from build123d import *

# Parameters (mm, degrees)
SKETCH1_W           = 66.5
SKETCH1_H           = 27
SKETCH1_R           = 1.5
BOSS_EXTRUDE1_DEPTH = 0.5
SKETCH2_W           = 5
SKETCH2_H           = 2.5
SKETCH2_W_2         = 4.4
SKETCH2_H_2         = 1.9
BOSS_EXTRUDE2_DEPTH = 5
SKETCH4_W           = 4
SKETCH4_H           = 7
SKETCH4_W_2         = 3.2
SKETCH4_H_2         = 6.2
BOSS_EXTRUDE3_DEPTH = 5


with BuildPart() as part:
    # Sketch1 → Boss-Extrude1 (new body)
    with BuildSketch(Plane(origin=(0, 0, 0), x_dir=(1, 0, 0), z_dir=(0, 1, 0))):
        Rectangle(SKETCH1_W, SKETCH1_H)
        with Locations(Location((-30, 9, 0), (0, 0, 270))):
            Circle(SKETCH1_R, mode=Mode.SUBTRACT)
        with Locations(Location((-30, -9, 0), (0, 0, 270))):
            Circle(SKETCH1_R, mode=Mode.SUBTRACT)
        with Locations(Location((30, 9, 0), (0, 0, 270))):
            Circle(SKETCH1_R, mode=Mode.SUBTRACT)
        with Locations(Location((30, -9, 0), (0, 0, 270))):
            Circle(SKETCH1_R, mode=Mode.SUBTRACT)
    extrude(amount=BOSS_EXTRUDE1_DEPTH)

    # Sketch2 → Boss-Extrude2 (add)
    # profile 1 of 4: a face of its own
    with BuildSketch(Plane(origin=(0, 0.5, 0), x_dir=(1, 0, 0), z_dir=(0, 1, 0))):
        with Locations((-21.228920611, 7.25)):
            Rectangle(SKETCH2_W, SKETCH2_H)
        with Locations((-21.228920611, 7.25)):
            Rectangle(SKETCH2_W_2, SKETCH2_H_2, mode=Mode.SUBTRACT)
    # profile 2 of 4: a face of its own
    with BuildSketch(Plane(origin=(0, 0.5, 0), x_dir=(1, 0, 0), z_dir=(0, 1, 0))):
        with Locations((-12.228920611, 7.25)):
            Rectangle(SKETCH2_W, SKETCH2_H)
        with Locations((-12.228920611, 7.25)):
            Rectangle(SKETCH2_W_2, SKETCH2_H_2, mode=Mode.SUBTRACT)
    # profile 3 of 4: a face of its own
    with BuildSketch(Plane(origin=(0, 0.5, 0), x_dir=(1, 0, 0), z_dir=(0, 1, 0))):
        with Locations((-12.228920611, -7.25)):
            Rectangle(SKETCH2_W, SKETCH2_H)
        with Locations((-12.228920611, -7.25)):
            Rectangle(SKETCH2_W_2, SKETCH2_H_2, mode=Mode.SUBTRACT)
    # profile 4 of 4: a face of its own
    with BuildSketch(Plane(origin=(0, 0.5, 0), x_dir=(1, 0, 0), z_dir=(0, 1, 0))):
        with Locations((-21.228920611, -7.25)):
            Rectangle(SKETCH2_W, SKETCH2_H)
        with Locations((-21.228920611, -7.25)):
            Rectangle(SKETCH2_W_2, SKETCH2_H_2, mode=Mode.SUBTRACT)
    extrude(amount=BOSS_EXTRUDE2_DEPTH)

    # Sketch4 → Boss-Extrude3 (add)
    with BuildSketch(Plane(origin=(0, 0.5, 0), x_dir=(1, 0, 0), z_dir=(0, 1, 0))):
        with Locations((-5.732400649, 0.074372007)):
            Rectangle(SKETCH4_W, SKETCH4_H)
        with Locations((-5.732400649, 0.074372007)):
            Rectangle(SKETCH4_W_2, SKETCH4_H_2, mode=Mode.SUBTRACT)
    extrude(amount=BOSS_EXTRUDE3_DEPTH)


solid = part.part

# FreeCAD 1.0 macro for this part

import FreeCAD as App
import Part
import Sketcher

V = App.Vector

doc = App.newDocument("Part")
params = doc.addObject("Spreadsheet::Sheet", "Params")
for row, (alias, value) in enumerate([
    ("sketch1_diameter", "3 mm"),
    ("sketch1_height", "27 mm"),
    ("sketch1_width", "66.5 mm"),
    ("pad1_length", "0.5 mm"),
    ("sketch2_width", "5 mm"),
    ("sketch2_width2", "4.4 mm"),
    ("sketch2_height", "2.5 mm"),
    ("sketch2_height2", "1.9 mm"),
    ("pad2_length", "5 mm"),
    ("sketch3_width", "4 mm"),
    ("sketch3_height", "7 mm"),
    ("sketch3_width2", "3.2 mm"),
    ("sketch3_height2", "6.2 mm"),
    ("pad3_length", "5 mm"),
], start=1):
    params.set(f"A{row}", alias)
    params.set(f"B{row}", "=" + value)
    params.setAlias(f"B{row}", alias)

body = doc.addObject("PartDesign::Body", "Body")

# Sketch on XZ plane
sketch1 = doc.addObject("Sketcher::SketchObject", "Sketch")
body.addObject(sketch1)
sketch1.AttachmentSupport = (doc.XZ_Plane, [""])
sketch1.MapMode = "FlatFace"
sketch1.addGeometry([
    Part.LineSegment(V(-33.2, -13.5, 0), V(-33.2, 13.5, 0)),  # 0
    Part.LineSegment(V(-33.2, 13.5, 0), V(33.2, 13.5, 0)),  # 1
    Part.LineSegment(V(33.2, 13.5, 0), V(33.2, -13.5, 0)),  # 2
    Part.LineSegment(V(33.2, -13.5, 0), V(-33.2, -13.5, 0)),  # 3
    Part.Circle(V(-30, 9, 0), V(0, 0, 1), 1.5),  # 4
    Part.Circle(V(30, 9, 0), V(0, 0, 1), 1.5),  # 5
    Part.Circle(V(-30, -9, 0), V(0, 0, 1), 1.5),  # 6
    Part.Circle(V(30, -9, 0), V(0, 0, 1), 1.5),  # 7
], False)
sketch1.addConstraint([
    Sketcher.Constraint("Coincident", 0, 2, 1, 1),
    Sketcher.Constraint("Coincident", 1, 2, 2, 1),
    Sketcher.Constraint("Coincident", 2, 2, 3, 1),
    Sketcher.Constraint("Coincident", 3, 2, 0, 1),
    Sketcher.Constraint("Vertical", 0),
    Sketcher.Constraint("Horizontal", 1),
    Sketcher.Constraint("Vertical", 2),
    Sketcher.Constraint("Horizontal", 3),
    Sketcher.Constraint("Equal", 4, 5),
    Sketcher.Constraint("Equal", 5, 6),
    Sketcher.Constraint("Equal", 6, 7),
    Sketcher.Constraint("Symmetric", 5, 3, 6, 3, -1, 1),
    Sketcher.Constraint("Symmetric", 4, 3, 7, 3, -1, 1),
    Sketcher.Constraint("Symmetric", 0, 2, 2, 2, -1, 1),
    Sketcher.Constraint("Symmetric", 4, 3, 5, 3, -2),
    Sketcher.Constraint("Diameter", 4, 3.0),
    Sketcher.Constraint("DistanceY", 0, 1, 0, 2, 27.0),
    Sketcher.Constraint("DistanceX", 1, 1, 1, 2, 66.5),
    Sketcher.Constraint("DistanceX", 4, 3, -1, 1, 30.0),
    Sketcher.Constraint("DistanceY", -1, 1, 4, 3, 9.0),
])
sketch1.setExpression("Constraints[15]", "Params.sketch1_diameter")
sketch1.setExpression("Constraints[16]", "Params.sketch1_height")
sketch1.setExpression("Constraints[17]", "Params.sketch1_width")
pad1 = doc.addObject("PartDesign::Pad", "Pad")
body.addObject(pad1)
pad1.Profile = sketch1
pad1.setExpression("Length", "Params.pad1_length")
pad1.Reversed = True

# Sketch on XZ plane
sketch2 = doc.addObject("Sketcher::SketchObject", "Sketch001")
body.addObject(sketch2)
sketch2.AttachmentSupport = (doc.XZ_Plane, [""])
sketch2.MapMode = "FlatFace"
sketch2.AttachmentOffset = App.Placement(V(0, 0, -0.5), App.Rotation())
sketch2.addGeometry([
    Part.LineSegment(V(-23.7, -8.5, 0), V(-23.7, -6, 0)),  # 0
    Part.LineSegment(V(-23.7, -6, 0), V(-18.7, -6, 0)),  # 1
    Part.LineSegment(V(-18.7, -6, 0), V(-18.7, -8.5, 0)),  # 2
    Part.LineSegment(V(-18.7, -8.5, 0), V(-23.7, -8.5, 0)),  # 3
    Part.LineSegment(V(-19, -6.3, 0), V(-23.4, -6.3, 0)),  # 4
    Part.LineSegment(V(-23.4, -6.3, 0), V(-23.4, -8.2, 0)),  # 5
    Part.LineSegment(V(-23.4, -8.2, 0), V(-19, -8.2, 0)),  # 6
    Part.LineSegment(V(-19, -8.2, 0), V(-19, -6.3, 0)),  # 7
    Part.LineSegment(V(-14.7, -8.5, 0), V(-14.7, -6, 0)),  # 8
    Part.LineSegment(V(-14.7, -6, 0), V(-9.7, -6, 0)),  # 9
    Part.LineSegment(V(-9.7, -6, 0), V(-9.7, -8.5, 0)),  # 10
    Part.LineSegment(V(-9.7, -8.5, 0), V(-14.7, -8.5, 0)),  # 11
    Part.LineSegment(V(-10, -6.3, 0), V(-14.4, -6.3, 0)),  # 12
    Part.LineSegment(V(-14.4, -6.3, 0), V(-14.4, -8.2, 0)),  # 13
    Part.LineSegment(V(-14.4, -8.2, 0), V(-10, -8.2, 0)),  # 14
    Part.LineSegment(V(-10, -8.2, 0), V(-10, -6.3, 0)),  # 15
    Part.LineSegment(V(-14.7, 6, 0), V(-14.7, 8.5, 0)),  # 16
    Part.LineSegment(V(-14.7, 8.5, 0), V(-9.7, 8.5, 0)),  # 17
    Part.LineSegment(V(-9.7, 8.5, 0), V(-9.7, 6, 0)),  # 18
    Part.LineSegment(V(-9.7, 6, 0), V(-14.7, 6, 0)),  # 19
    Part.LineSegment(V(-10, 8.2, 0), V(-14.4, 8.2, 0)),  # 20
    Part.LineSegment(V(-14.4, 8.2, 0), V(-14.4, 6.3, 0)),  # 21
    Part.LineSegment(V(-14.4, 6.3, 0), V(-10, 6.3, 0)),  # 22
    Part.LineSegment(V(-10, 6.3, 0), V(-10, 8.2, 0)),  # 23
    Part.LineSegment(V(-23.7, 6, 0), V(-23.7, 8.5, 0)),  # 24
    Part.LineSegment(V(-23.7, 8.5, 0), V(-18.7, 8.5, 0)),  # 25
    Part.LineSegment(V(-18.7, 8.5, 0), V(-18.7, 6, 0)),  # 26
    Part.LineSegment(V(-18.7, 6, 0), V(-23.7, 6, 0)),  # 27
    Part.LineSegment(V(-19, 8.2, 0), V(-23.4, 8.2, 0)),  # 28
    Part.LineSegment(V(-23.4, 8.2, 0), V(-23.4, 6.3, 0)),  # 29
    Part.LineSegment(V(-23.4, 6.3, 0), V(-19, 6.3, 0)),  # 30
    Part.LineSegment(V(-19, 6.3, 0), V(-19, 8.2, 0)),  # 31
], False)
sketch2.addConstraint([
    Sketcher.Constraint("Coincident", 0, 2, 1, 1),
    Sketcher.Constraint("Coincident", 1, 2, 2, 1),
    Sketcher.Constraint("Coincident", 2, 2, 3, 1),
    Sketcher.Constraint("Coincident", 3, 2, 0, 1),
    Sketcher.Constraint("Coincident", 4, 2, 5, 1),
    Sketcher.Constraint("Coincident", 5, 2, 6, 1),
    Sketcher.Constraint("Coincident", 6, 2, 7, 1),
    Sketcher.Constraint("Coincident", 7, 2, 4, 1),
    Sketcher.Constraint("Coincident", 8, 2, 9, 1),
    Sketcher.Constraint("Coincident", 9, 2, 10, 1),
    Sketcher.Constraint("Coincident", 10, 2, 11, 1),
    Sketcher.Constraint("Coincident", 11, 2, 8, 1),
    Sketcher.Constraint("Coincident", 12, 2, 13, 1),
    Sketcher.Constraint("Coincident", 13, 2, 14, 1),
    Sketcher.Constraint("Coincident", 14, 2, 15, 1),
    Sketcher.Constraint("Coincident", 15, 2, 12, 1),
    Sketcher.Constraint("Coincident", 16, 2, 17, 1),
    Sketcher.Constraint("Coincident", 17, 2, 18, 1),
    Sketcher.Constraint("Coincident", 18, 2, 19, 1),
    Sketcher.Constraint("Coincident", 19, 2, 16, 1),
    Sketcher.Constraint("Coincident", 20, 2, 21, 1),
    Sketcher.Constraint("Coincident", 21, 2, 22, 1),
    Sketcher.Constraint("Coincident", 22, 2, 23, 1),
    Sketcher.Constraint("Coincident", 23, 2, 20, 1),
    Sketcher.Constraint("Coincident", 24, 2, 25, 1),
    Sketcher.Constraint("Coincident", 25, 2, 26, 1),
    Sketcher.Constraint("Coincident", 26, 2, 27, 1),
    Sketcher.Constraint("Coincident", 27, 2, 24, 1),
    Sketcher.Constraint("Coincident", 28, 2, 29, 1),
    Sketcher.Constraint("Coincident", 29, 2, 30, 1),
    Sketcher.Constraint("Coincident", 30, 2, 31, 1),
    Sketcher.Constraint("Coincident", 31, 2, 28, 1),
    Sketcher.Constraint("Vertical", 0),
    Sketcher.Constraint("Horizontal", 1),
    Sketcher.Constraint("Vertical", 2),
    Sketcher.Constraint("Horizontal", 3),
    Sketcher.Constraint("Horizontal", 4),
    Sketcher.Constraint("Vertical", 5),
    Sketcher.Constraint("Horizontal", 6),
    Sketcher.Constraint("Vertical", 7),
    Sketcher.Constraint("Vertical", 8),
    Sketcher.Constraint("Horizontal", 9),
    Sketcher.Constraint("Vertical", 10),
    Sketcher.Constraint("Horizontal", 11),
    Sketcher.Constraint("Horizontal", 12),
    Sketcher.Constraint("Vertical", 13),
    Sketcher.Constraint("Horizontal", 14),
    Sketcher.Constraint("Vertical", 15),
    Sketcher.Constraint("Vertical", 16),
    Sketcher.Constraint("Horizontal", 17),
    Sketcher.Constraint("Vertical", 18),
    Sketcher.Constraint("Horizontal", 19),
    Sketcher.Constraint("Horizontal", 20),
    Sketcher.Constraint("Vertical", 21),
    Sketcher.Constraint("Horizontal", 22),
    Sketcher.Constraint("Vertical", 23),
    Sketcher.Constraint("Vertical", 24),
    Sketcher.Constraint("Horizontal", 25),
    Sketcher.Constraint("Vertical", 26),
    Sketcher.Constraint("Horizontal", 27),
    Sketcher.Constraint("Horizontal", 28),
    Sketcher.Constraint("Vertical", 29),
    Sketcher.Constraint("Horizontal", 30),
    Sketcher.Constraint("Vertical", 31),
    Sketcher.Constraint("Symmetric", 11, 2, 16, 2, -1),
    Sketcher.Constraint("Symmetric", 9, 2, 18, 2, -1),
    Sketcher.Constraint("Symmetric", 13, 2, 20, 2, -1),
    Sketcher.Constraint("Symmetric", 15, 2, 22, 2, -1),
    Sketcher.Constraint("Symmetric", 3, 2, 24, 2, -1),
    Sketcher.Constraint("Symmetric", 1, 2, 26, 2, -1),
    Sketcher.Constraint("Symmetric", 5, 2, 28, 2, -1),
    Sketcher.Constraint("Symmetric", 7, 2, 30, 2, -1),
    Sketcher.Constraint("Horizontal", 1, 2, 8, 2),
    Sketcher.Constraint("Horizontal", 3, 2, 10, 2),
    Sketcher.Constraint("Horizontal", 7, 2, 12, 2),
    Sketcher.Constraint("Horizontal", 6, 2, 13, 2),
    Sketcher.Constraint("Equal", 3, 9),
    Sketcher.Constraint("Equal", 6, 12),
    Sketcher.Constraint("DistanceX", 1, 1, 1, 2, 5.0),
    Sketcher.Constraint("DistanceX", 4, 2, 4, 1, 4.4),
    Sketcher.Constraint("DistanceY", 0, 1, 0, 2, 2.5),
    Sketcher.Constraint("DistanceY", 5, 2, 5, 1, 1.9),
    Sketcher.Constraint("DistanceY", 0, 2, -1, 1, 6.0),
    Sketcher.Constraint("DistanceX", 1, 2, 8, 2, 4.0),
    Sketcher.Constraint("DistanceY", 4, 2, -1, 1, 6.3),
    Sketcher.Constraint("DistanceX", 0, 2, 4, 2, 0.3),
    Sketcher.Constraint("DistanceX", 8, 2, 12, 2, 0.3),
    Sketcher.Constraint("DistanceX", 0, 2, -1, 1, 23.728921),
])
sketch2.setExpression("Constraints[78]", "Params.sketch2_width")
sketch2.setExpression("Constraints[79]", "Params.sketch2_width2")
sketch2.setExpression("Constraints[80]", "Params.sketch2_height")
sketch2.setExpression("Constraints[81]", "Params.sketch2_height2")
pad2 = doc.addObject("PartDesign::Pad", "Pad001")
body.addObject(pad2)
pad2.Profile = sketch2
pad2.setExpression("Length", "Params.pad2_length")
pad2.Reversed = True

# Sketch on XZ plane
sketch3 = doc.addObject("Sketcher::SketchObject", "Sketch002")
body.addObject(sketch3)
sketch3.AttachmentSupport = (doc.XZ_Plane, [""])
sketch3.MapMode = "FlatFace"
sketch3.AttachmentOffset = App.Placement(V(0, 0, -0.5), App.Rotation())
sketch3.addGeometry([
    Part.LineSegment(V(-7.7, -3.6, 0), V(-7.7, 3.4, 0)),  # 0
    Part.LineSegment(V(-7.7, 3.4, 0), V(-3.7, 3.4, 0)),  # 1
    Part.LineSegment(V(-3.7, 3.4, 0), V(-3.7, -3.6, 0)),  # 2
    Part.LineSegment(V(-3.7, -3.6, 0), V(-7.7, -3.6, 0)),  # 3
    Part.LineSegment(V(-4.1, 3, 0), V(-7.3, 3, 0)),  # 4
    Part.LineSegment(V(-7.3, 3, 0), V(-7.3, -3.2, 0)),  # 5
    Part.LineSegment(V(-7.3, -3.2, 0), V(-4.1, -3.2, 0)),  # 6
    Part.LineSegment(V(-4.1, -3.2, 0), V(-4.1, 3, 0)),  # 7
], False)
sketch3.addConstraint([
    Sketcher.Constraint("Coincident", 0, 2, 1, 1),
    Sketcher.Constraint("Coincident", 1, 2, 2, 1),
    Sketcher.Constraint("Coincident", 2, 2, 3, 1),
    Sketcher.Constraint("Coincident", 3, 2, 0, 1),
    Sketcher.Constraint("Coincident", 4, 2, 5, 1),
    Sketcher.Constraint("Coincident", 5, 2, 6, 1),
    Sketcher.Constraint("Coincident", 6, 2, 7, 1),
    Sketcher.Constraint("Coincident", 7, 2, 4, 1),
    Sketcher.Constraint("Vertical", 0),
    Sketcher.Constraint("Horizontal", 1),
    Sketcher.Constraint("Vertical", 2),
    Sketcher.Constraint("Horizontal", 3),
    Sketcher.Constraint("Horizontal", 4),
    Sketcher.Constraint("Vertical", 5),
    Sketcher.Constraint("Horizontal", 6),
    Sketcher.Constraint("Vertical", 7),
    Sketcher.Constraint("DistanceX", 1, 1, 1, 2, 4.0),
    Sketcher.Constraint("DistanceY", 0, 1, 0, 2, 7.0),
    Sketcher.Constraint("DistanceX", 4, 2, 4, 1, 3.2),
    Sketcher.Constraint("DistanceY", 5, 2, 5, 1, 6.2),
    Sketcher.Constraint("DistanceX", 0, 2, 4, 2, 0.4),
    Sketcher.Constraint("DistanceY", 4, 2, 0, 2, 0.4),
    Sketcher.Constraint("DistanceX", 0, 2, -1, 1, 7.732401),
    Sketcher.Constraint("DistanceY", -1, 1, 0, 2, 3.425628),
])
sketch3.setExpression("Constraints[16]", "Params.sketch3_width")
sketch3.setExpression("Constraints[17]", "Params.sketch3_height")
sketch3.setExpression("Constraints[18]", "Params.sketch3_width2")
sketch3.setExpression("Constraints[19]", "Params.sketch3_height2")
pad3 = doc.addObject("PartDesign::Pad", "Pad002")
body.addObject(pad3)
pad3.Profile = sketch3
pad3.setExpression("Length", "Params.pad3_length")
pad3.Reversed = True

doc.recompute()
